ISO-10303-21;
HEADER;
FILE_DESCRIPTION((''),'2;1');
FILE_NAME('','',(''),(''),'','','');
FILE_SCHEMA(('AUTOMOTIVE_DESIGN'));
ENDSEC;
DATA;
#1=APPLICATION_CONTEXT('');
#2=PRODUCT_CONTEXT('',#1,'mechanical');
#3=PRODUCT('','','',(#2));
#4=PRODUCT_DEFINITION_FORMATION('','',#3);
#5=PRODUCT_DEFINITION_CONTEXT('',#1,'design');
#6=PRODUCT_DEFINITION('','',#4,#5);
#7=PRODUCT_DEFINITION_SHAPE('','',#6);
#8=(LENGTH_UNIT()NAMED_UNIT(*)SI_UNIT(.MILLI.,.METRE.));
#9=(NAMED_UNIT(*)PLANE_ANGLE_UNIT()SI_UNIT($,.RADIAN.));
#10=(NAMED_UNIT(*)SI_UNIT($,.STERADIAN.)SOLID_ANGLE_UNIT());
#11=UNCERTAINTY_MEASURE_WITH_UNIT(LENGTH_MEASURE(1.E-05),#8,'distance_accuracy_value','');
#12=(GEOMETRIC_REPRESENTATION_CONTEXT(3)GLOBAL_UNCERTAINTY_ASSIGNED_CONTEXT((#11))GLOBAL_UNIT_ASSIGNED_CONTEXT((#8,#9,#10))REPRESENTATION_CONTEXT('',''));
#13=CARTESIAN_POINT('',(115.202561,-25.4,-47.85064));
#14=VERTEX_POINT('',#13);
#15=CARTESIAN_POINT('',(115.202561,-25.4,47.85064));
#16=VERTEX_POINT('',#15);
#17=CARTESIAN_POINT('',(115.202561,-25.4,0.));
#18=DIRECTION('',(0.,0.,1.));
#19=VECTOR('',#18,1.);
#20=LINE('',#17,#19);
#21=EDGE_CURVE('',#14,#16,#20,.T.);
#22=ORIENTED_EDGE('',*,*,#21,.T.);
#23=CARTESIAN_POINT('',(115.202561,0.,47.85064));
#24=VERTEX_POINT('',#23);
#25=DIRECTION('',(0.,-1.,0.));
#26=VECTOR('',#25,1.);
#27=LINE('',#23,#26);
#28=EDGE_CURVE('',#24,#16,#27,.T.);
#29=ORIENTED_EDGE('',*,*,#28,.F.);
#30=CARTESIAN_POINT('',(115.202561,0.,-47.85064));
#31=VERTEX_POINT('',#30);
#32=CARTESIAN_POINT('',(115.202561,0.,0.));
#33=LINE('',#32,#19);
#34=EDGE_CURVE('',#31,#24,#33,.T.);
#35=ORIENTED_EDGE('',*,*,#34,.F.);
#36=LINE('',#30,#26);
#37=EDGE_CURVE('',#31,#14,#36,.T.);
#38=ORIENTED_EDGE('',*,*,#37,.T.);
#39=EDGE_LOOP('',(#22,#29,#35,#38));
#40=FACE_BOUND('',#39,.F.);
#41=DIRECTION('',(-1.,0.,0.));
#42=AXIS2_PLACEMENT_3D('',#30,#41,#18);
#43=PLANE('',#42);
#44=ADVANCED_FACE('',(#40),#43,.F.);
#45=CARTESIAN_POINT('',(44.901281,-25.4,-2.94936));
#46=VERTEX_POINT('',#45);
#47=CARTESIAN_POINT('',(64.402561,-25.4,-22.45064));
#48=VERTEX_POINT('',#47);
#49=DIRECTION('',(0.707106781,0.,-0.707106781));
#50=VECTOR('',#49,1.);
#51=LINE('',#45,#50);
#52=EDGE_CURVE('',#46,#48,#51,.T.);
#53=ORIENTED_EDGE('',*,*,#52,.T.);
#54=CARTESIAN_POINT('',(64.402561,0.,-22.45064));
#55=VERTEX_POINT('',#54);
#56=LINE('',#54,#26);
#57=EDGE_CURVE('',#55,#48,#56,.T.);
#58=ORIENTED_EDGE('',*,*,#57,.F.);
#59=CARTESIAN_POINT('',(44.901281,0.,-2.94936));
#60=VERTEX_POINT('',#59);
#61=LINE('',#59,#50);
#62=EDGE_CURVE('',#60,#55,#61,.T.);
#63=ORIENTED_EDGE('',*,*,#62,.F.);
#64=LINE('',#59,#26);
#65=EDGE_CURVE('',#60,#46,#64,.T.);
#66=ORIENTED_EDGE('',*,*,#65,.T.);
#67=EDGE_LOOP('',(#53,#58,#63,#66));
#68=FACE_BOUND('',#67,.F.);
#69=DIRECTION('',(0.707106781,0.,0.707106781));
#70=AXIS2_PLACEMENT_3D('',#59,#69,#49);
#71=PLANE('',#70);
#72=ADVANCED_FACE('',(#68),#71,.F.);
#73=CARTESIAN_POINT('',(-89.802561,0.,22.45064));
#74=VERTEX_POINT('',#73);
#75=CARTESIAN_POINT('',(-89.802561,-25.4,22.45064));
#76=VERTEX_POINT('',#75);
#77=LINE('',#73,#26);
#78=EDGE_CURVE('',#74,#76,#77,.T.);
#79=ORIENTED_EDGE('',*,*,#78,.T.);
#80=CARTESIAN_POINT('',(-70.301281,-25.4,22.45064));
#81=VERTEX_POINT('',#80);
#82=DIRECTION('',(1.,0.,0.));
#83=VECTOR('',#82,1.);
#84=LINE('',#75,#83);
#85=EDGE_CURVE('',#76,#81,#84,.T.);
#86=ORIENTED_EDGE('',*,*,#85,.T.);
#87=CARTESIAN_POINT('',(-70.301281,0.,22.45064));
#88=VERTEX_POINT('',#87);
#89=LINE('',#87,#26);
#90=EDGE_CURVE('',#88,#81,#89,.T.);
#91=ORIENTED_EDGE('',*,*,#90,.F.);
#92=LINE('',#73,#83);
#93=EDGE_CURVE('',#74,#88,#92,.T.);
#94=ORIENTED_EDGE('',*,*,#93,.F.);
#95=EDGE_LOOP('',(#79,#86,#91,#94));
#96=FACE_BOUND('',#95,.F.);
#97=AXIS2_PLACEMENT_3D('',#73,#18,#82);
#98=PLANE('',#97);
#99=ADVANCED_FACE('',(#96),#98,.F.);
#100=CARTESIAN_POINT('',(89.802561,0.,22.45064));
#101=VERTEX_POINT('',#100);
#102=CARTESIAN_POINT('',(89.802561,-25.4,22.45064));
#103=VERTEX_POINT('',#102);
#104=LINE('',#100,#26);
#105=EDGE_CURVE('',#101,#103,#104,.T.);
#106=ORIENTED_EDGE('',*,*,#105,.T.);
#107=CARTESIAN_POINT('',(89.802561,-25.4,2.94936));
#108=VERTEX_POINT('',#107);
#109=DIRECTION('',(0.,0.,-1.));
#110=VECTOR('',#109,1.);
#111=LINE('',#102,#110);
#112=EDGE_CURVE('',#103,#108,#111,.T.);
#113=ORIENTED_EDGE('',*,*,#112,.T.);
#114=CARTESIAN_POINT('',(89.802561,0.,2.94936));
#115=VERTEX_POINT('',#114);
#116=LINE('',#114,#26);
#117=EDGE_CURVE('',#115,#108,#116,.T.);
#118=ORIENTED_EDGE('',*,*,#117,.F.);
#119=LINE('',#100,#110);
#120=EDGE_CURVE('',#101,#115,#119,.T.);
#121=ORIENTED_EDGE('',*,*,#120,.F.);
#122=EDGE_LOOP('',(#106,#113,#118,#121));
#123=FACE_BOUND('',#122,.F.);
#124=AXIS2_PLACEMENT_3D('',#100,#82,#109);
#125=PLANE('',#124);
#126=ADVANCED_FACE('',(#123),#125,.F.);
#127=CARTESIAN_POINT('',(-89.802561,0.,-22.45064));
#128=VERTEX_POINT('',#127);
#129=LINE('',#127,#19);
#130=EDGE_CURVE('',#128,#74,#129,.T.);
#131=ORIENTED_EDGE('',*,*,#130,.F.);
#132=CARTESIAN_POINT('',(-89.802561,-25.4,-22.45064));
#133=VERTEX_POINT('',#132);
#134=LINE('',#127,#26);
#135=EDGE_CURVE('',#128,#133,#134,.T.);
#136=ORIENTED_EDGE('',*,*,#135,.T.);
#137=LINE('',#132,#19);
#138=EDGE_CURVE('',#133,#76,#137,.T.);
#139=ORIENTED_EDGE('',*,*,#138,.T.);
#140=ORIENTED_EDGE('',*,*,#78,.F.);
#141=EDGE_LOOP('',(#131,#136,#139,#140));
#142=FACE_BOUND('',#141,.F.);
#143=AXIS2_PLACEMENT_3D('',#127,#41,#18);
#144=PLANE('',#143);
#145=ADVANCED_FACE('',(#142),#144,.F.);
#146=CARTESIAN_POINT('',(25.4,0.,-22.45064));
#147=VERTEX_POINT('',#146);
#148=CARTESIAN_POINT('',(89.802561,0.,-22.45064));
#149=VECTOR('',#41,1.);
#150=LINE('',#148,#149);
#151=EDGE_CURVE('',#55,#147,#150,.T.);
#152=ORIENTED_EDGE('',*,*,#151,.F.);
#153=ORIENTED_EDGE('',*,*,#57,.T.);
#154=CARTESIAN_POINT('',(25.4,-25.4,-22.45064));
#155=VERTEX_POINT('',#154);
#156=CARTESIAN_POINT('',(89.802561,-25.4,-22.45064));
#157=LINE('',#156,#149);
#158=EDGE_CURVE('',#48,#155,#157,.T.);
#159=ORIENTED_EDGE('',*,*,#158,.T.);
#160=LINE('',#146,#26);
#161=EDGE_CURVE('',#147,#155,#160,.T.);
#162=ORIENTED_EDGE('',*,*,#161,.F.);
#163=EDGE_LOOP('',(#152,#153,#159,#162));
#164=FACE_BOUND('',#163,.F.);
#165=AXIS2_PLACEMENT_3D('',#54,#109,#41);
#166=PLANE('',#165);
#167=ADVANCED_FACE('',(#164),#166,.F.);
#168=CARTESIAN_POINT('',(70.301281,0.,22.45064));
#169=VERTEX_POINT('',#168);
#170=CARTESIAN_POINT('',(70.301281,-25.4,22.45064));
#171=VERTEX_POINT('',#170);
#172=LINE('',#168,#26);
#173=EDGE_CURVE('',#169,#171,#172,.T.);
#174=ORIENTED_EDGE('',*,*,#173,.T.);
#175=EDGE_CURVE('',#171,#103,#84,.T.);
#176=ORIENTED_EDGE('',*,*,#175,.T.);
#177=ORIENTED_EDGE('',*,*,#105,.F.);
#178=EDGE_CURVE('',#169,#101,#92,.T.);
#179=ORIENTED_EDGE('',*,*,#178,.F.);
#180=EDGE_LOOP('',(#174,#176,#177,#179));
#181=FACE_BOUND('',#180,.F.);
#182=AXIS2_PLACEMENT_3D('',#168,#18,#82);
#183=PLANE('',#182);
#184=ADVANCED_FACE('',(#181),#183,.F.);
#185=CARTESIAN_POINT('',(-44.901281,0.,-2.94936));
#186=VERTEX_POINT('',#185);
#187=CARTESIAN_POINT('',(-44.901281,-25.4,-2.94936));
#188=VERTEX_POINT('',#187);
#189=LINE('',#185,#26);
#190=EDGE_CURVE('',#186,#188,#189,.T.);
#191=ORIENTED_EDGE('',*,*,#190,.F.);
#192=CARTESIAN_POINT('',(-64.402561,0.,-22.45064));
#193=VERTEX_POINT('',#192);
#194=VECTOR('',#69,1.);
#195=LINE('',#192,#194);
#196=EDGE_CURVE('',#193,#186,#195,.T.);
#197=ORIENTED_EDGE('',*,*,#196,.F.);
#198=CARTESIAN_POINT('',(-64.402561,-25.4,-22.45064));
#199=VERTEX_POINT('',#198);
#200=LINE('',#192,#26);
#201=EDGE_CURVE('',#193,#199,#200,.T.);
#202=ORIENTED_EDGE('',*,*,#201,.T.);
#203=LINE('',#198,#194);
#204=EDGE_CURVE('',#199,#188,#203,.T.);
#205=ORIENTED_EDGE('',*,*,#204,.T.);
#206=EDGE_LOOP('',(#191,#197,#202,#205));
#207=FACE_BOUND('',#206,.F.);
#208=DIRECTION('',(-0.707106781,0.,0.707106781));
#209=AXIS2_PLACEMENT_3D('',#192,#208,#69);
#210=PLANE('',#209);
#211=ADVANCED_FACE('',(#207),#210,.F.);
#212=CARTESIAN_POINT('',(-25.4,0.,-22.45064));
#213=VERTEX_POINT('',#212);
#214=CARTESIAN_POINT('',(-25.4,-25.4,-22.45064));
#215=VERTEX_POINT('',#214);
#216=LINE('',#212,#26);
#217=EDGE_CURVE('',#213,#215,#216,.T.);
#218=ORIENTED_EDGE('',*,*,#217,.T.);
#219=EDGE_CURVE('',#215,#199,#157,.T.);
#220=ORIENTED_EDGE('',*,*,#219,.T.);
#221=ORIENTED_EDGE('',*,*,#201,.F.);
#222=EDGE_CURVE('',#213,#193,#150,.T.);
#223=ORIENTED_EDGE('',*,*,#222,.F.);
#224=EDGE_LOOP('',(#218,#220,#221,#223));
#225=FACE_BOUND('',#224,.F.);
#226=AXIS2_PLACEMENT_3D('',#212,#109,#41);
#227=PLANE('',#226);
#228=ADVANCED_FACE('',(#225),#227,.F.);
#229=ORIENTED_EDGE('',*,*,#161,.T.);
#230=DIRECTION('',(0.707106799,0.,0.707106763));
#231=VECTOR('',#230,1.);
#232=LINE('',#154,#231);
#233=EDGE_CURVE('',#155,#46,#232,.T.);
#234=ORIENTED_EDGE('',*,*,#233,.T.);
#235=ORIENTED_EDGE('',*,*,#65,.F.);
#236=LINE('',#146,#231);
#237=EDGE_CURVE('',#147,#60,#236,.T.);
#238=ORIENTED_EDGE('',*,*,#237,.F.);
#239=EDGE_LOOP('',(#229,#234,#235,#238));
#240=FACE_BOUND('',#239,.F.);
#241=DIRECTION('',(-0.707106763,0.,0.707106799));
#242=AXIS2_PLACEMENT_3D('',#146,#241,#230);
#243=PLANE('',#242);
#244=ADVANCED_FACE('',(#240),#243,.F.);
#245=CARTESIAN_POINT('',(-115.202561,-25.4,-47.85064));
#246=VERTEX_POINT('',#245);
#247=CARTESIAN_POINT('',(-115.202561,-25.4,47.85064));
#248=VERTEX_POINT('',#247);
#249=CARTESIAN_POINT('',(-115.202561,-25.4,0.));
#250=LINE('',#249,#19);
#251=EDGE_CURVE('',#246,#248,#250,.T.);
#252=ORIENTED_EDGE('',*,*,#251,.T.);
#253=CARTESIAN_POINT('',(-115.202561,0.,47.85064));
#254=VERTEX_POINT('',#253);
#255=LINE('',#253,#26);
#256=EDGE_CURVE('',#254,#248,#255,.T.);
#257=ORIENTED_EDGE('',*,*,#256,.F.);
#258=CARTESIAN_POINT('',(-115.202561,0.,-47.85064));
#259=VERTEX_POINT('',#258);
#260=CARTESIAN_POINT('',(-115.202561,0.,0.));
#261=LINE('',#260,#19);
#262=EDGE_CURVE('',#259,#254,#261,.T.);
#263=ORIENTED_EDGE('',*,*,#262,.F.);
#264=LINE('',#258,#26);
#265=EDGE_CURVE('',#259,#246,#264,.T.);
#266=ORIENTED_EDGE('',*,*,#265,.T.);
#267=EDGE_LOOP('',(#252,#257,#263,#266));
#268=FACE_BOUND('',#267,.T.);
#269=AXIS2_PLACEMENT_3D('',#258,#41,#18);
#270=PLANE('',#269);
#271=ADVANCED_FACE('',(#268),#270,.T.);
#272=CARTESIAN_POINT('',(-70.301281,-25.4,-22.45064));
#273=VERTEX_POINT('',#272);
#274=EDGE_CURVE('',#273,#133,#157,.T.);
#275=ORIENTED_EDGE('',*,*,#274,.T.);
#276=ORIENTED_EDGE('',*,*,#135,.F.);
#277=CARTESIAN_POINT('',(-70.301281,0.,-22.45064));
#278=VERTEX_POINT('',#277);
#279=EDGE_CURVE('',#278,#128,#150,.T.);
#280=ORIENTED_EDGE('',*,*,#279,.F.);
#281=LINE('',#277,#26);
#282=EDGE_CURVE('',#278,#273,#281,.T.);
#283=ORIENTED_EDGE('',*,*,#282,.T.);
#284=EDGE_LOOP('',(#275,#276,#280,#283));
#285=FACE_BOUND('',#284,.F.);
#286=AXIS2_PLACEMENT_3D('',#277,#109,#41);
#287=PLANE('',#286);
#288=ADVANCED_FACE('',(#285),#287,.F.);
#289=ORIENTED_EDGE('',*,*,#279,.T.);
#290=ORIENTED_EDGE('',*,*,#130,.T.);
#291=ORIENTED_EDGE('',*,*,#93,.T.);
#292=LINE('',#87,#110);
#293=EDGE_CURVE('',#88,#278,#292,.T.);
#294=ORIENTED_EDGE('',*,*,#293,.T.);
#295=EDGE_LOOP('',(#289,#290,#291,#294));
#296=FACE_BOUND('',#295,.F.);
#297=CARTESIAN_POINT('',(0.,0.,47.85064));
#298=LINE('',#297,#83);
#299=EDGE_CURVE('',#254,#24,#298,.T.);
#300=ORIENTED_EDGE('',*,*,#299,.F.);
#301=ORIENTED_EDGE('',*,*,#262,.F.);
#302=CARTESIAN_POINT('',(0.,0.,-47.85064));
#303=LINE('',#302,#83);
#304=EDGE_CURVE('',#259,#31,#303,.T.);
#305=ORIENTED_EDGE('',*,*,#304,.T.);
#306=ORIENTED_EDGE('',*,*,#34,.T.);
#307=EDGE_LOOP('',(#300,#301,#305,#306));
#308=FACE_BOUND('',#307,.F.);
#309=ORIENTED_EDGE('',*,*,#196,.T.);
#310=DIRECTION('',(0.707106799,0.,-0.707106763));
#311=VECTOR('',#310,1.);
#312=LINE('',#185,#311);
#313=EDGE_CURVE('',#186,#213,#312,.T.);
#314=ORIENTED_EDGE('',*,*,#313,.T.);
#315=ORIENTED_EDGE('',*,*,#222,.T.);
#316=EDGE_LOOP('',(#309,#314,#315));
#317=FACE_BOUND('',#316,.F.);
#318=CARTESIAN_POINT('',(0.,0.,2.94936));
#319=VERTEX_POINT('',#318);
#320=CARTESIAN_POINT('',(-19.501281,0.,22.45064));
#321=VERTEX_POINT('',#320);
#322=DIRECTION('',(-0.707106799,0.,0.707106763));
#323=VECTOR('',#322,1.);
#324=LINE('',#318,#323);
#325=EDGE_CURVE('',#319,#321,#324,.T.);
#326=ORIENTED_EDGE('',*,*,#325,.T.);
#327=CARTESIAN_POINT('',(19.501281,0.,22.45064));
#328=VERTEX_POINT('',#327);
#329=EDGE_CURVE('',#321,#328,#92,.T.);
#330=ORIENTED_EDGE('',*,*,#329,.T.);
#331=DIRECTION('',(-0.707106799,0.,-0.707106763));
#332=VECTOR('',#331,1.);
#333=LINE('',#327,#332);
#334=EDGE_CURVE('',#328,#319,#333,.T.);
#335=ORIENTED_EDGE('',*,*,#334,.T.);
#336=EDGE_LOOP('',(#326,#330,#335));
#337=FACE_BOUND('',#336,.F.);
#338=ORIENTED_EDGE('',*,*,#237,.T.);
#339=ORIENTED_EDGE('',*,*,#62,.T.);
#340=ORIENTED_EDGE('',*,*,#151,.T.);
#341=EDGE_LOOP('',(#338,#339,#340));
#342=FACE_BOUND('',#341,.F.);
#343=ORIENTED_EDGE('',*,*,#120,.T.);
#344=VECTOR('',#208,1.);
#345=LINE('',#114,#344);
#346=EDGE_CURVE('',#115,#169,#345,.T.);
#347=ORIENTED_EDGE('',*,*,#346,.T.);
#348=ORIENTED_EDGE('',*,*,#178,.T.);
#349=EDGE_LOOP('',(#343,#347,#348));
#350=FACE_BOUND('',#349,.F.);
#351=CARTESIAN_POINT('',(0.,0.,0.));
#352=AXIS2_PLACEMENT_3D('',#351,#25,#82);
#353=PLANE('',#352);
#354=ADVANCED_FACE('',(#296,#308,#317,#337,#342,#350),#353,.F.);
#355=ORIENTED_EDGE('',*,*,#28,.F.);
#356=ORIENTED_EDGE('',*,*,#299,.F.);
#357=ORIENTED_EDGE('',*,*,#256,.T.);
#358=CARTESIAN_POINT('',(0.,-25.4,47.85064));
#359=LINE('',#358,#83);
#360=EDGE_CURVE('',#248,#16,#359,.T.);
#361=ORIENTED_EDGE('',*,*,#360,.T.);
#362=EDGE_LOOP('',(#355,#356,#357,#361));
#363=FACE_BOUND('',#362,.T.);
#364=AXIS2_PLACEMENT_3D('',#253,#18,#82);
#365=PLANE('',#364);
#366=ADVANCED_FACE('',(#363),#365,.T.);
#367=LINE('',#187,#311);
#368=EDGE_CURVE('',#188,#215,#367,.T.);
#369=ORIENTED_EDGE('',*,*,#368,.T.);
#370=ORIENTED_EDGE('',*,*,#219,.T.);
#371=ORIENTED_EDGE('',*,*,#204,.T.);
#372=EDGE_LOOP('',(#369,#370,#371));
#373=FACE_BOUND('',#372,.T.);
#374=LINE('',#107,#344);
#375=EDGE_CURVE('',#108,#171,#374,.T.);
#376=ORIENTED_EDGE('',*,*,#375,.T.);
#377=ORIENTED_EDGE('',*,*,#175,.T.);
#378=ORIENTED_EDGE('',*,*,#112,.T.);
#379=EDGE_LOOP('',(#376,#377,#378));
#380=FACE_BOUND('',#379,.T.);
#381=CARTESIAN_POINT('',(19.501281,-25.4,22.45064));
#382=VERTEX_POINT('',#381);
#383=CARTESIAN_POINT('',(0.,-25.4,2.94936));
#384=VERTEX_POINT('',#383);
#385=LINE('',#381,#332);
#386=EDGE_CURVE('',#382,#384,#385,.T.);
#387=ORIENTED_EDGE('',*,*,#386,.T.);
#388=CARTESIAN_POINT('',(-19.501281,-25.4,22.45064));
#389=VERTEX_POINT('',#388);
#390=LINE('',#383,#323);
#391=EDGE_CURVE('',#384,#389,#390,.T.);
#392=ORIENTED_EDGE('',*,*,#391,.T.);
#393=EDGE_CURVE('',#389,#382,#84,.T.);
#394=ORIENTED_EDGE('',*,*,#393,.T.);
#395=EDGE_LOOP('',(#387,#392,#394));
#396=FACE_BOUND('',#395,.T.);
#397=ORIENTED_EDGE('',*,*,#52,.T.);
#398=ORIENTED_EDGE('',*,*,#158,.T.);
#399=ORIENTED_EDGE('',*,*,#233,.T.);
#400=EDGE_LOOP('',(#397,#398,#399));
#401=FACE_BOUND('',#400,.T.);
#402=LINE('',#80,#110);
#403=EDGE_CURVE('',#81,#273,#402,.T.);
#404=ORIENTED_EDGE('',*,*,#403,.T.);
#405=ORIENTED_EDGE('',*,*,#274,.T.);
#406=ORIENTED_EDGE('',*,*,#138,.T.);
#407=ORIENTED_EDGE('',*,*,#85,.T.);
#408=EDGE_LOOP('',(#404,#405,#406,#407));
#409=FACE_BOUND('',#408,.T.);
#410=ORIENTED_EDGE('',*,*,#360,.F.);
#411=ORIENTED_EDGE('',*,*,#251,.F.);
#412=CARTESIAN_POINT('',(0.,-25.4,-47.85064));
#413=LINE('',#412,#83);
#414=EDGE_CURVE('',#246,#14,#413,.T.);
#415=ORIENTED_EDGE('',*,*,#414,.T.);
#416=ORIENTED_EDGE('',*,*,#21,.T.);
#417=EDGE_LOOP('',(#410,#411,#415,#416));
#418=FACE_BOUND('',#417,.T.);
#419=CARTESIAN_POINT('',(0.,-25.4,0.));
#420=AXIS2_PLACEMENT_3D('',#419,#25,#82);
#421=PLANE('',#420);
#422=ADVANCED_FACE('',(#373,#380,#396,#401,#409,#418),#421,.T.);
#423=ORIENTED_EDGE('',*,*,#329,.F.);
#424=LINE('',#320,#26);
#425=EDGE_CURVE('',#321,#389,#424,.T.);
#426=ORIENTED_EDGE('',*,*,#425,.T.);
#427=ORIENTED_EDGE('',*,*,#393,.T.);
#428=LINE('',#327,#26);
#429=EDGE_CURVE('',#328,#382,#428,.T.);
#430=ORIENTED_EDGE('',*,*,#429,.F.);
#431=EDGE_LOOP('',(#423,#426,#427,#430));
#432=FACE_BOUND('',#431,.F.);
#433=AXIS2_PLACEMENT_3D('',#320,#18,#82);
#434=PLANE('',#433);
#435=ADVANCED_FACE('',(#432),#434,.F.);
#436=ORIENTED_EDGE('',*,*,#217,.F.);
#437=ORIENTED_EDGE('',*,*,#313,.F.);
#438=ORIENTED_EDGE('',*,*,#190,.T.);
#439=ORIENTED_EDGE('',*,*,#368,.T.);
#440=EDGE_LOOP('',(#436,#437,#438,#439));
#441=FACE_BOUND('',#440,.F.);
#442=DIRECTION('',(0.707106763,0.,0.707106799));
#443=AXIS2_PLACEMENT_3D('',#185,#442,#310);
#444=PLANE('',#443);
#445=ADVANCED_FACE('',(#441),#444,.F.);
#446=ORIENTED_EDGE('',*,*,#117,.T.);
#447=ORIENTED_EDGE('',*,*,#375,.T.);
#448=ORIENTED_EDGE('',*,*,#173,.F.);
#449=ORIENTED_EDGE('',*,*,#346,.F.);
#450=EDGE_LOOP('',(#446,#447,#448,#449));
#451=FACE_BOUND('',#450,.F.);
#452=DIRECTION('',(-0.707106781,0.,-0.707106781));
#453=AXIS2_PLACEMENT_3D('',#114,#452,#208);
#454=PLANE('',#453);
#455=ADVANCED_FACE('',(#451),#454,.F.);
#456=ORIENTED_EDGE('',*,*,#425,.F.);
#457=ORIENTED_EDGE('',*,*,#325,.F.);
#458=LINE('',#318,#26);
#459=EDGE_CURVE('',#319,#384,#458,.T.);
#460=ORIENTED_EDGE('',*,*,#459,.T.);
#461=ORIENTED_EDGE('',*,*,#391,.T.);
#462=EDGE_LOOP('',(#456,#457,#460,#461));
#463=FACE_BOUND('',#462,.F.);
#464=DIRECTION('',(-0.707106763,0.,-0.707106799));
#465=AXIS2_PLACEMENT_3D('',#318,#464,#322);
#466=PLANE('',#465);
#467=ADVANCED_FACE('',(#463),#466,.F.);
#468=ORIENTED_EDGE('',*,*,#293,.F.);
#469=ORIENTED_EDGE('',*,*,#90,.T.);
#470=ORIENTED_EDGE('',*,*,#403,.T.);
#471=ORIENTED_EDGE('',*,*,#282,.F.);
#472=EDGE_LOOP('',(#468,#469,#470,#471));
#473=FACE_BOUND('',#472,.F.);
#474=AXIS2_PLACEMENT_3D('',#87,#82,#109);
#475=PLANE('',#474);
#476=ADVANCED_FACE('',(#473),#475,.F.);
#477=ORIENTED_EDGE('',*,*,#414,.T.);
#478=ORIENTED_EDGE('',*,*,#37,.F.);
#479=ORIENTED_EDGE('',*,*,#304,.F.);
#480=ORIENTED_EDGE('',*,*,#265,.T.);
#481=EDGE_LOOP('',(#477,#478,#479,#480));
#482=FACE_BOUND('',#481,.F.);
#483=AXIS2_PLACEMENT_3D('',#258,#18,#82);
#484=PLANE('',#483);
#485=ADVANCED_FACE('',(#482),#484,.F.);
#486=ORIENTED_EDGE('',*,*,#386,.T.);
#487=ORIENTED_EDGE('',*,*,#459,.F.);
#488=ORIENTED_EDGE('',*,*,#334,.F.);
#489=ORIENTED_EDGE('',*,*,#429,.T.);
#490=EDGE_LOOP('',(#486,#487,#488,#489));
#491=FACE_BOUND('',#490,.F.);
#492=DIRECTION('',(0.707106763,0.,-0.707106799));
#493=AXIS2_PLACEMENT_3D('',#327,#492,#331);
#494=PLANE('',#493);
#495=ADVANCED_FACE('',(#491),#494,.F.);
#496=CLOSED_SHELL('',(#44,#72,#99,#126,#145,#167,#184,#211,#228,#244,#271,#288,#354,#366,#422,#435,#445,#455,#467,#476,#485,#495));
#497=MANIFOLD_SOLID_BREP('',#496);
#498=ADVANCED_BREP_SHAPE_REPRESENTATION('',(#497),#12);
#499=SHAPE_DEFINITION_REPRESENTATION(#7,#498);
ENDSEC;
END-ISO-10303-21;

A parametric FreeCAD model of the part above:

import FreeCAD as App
import Part
import Sketcher

V = App.Vector
Q = App.Units.Quantity


def add_polygon(sketch, points):
    """Adds a closed chain of lines whose ends are joined by coincident constraints."""
    first, n = sketch.GeometryCount, len(points)
    for a, b in zip(points, points[1:] + points[:1]):
        sketch.addGeometry(Part.LineSegment(App.Vector(*a, 0), App.Vector(*b, 0)), False)
    for i in range(n):
        sketch.addConstraint(Sketcher.Constraint("Coincident", first + i, 2, first + (i + 1) % n, 1))

doc = App.newDocument("Part")
params = doc.addObject("Spreadsheet::Sheet", "Params")
for row, (alias, value) in enumerate([
    ("pad1_length", "1 in"),
], start=1):
    params.set(f"A{row}", alias)
    params.set(f"B{row}", "=" + value)
    params.setAlias(f"B{row}", alias)

body = doc.addObject("PartDesign::Body", "Body")

# Sketch on XZ plane
sketch1 = doc.addObject("Sketcher::SketchObject", "Sketch")
body.addObject(sketch1)
sketch1.AttachmentSupport = (doc.XZ_Plane, [""])
sketch1.MapMode = "FlatFace"
add_polygon(sketch1, [(-115, 48), (-115, -48), (115, -48), (115, 48)])  # lines 0-3
add_polygon(sketch1, [(64, -22), (25, -22), (45, -3)])  # lines 4-6
add_polygon(sketch1, [(70, 22), (90, 22), (90, 3)])  # lines 7-9
add_polygon(sketch1, [(0, 3), (-20, 22), (20, 22)])  # lines 10-12
add_polygon(sketch1, [(-25, -22), (-64, -22), (-45, -3)])  # lines 13-15
add_polygon(sketch1, [(-70, -22), (-90, -22), (-90, 22), (-70, 22)])  # lines 16-19
sketch1.addConstraint([
    Sketcher.Constraint("Vertical", 0),
    Sketcher.Constraint("Horizontal", 1),
    Sketcher.Constraint("Vertical", 2),
    Sketcher.Constraint("Horizontal", 3),
    Sketcher.Constraint("Horizontal", 4),
    Sketcher.Constraint("Horizontal", 7),
    Sketcher.Constraint("Vertical", 8),
    Sketcher.Constraint("Horizontal", 11),
    Sketcher.Constraint("Horizontal", 13),
    Sketcher.Constraint("Horizontal", 16),
    Sketcher.Constraint("Vertical", 17),
    Sketcher.Constraint("Horizontal", 18),
    Sketcher.Constraint("Vertical", 19),
    Sketcher.Constraint("Symmetric", 0, 2, 2, 2, -1, 1),
    Sketcher.Constraint("Symmetric", 7, 2, 16, 2, -1, 1),
    Sketcher.Constraint("Symmetric", 6, 2, 13, 2, -2),
    Sketcher.Constraint("Symmetric", 5, 2, 14, 2, -2),
    Sketcher.Constraint("Symmetric", 9, 2, 18, 2, -2),
    Sketcher.Constraint("PointOnObject", 12, 2, -2),
    Sketcher.Constraint("Perpendicular", 5, 6),
    Sketcher.Constraint("Parallel", 6, 9),
    Sketcher.Constraint("Parallel", 9, 10),
    Sketcher.Constraint("Perpendicular", 10, 12),
    Sketcher.Constraint("Parallel", 12, 14),
    Sketcher.Constraint("Perpendicular", 14, 15),
    Sketcher.Constraint("Horizontal", 9, 2, 10, 2),
    Sketcher.Constraint("Horizontal", 8, 2, 12, 2),
    Sketcher.Constraint("Horizontal", 15, 2, 16, 2),
    Sketcher.Constraint("Equal", 4, 11),
    Sketcher.Constraint("DistanceX", -1, 1, 4, 2, Q("1 in")),
    Sketcher.Constraint("DistanceY", 1, 2, 4, 2, Q("1 in")),
    Sketcher.Constraint("DistanceY", 5, 2, 2, 2, Q("2 in")),
    Sketcher.Constraint("DistanceX", 6, 2, 1, 2, Q("2 in")),
    Sketcher.Constraint("DistanceX", 7, 2, 2, 2, Q("1 in")),
    Sketcher.Constraint("DistanceX", 1, 1, 1, 2, Q("230.405122 mm")),
])
pad1 = doc.addObject("PartDesign::Pad", "Pad")
body.addObject(pad1)
pad1.Profile = sketch1
pad1.setExpression("Length", "Params.pad1_length")

doc.recompute()
